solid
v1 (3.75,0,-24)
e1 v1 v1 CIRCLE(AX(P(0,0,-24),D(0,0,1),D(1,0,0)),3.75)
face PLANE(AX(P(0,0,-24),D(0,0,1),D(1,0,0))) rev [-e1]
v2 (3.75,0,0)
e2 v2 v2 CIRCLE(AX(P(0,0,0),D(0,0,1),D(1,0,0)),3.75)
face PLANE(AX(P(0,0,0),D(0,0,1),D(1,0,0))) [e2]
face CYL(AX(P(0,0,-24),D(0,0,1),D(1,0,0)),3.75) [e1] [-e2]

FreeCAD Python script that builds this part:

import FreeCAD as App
import Part
import Sketcher

doc = App.newDocument("Part")
params = doc.addObject("Spreadsheet::Sheet", "Params")
for row, (alias, value) in enumerate([
    ("sketch1_diameter", "7.5 mm"),
    ("pad1_length", "24 mm"),
], start=1):
    params.set(f"A{row}", alias)
    params.set(f"B{row}", "=" + value)
    params.setAlias(f"B{row}", alias)

body = doc.addObject("PartDesign::Body", "Body")

# Sketch on XY plane
sketch1 = body.newObject("Sketcher::SketchObject", "Sketch")
sketch1.AttachmentSupport = (doc.getObject("XY_Plane"), [""])
sketch1.MapMode = "FlatFace"
sketch1.addGeometry(Part.Circle(App.Vector(0, 0, 0), App.Vector(0, 0, 1), 3.8), False)
sketch1.addConstraint([
    Sketcher.Constraint("Coincident", 0, 3, -1, 1),
    Sketcher.Constraint("Diameter", 0, 7.5),
])
sketch1.setExpression("Constraints[1]", "Params.sketch1_diameter")
pad1 = body.newObject("PartDesign::Pad", "Pad")
pad1.Profile = sketch1
pad1.setExpression("Length", "Params.pad1_length")
pad1.Reversed = True

doc.recompute()
